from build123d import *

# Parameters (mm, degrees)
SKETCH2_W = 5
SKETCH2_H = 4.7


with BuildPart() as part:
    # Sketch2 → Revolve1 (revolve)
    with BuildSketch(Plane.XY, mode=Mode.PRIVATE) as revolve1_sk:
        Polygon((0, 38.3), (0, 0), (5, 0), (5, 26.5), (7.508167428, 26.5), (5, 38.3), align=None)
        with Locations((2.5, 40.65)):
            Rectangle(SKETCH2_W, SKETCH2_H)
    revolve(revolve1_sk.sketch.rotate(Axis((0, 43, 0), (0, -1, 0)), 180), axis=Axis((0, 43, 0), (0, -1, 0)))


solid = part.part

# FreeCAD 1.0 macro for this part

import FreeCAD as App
import Part
import Sketcher

V = App.Vector
Q = App.Units.Quantity


def add_polygon(sketch, points):
    """Adds a closed chain of lines whose ends are joined by coincident constraints."""
    first, n = sketch.GeometryCount, len(points)
    for a, b in zip(points, points[1:] + points[:1]):
        sketch.addGeometry(Part.LineSegment(App.Vector(*a, 0), App.Vector(*b, 0)), False)
    for i in range(n):
        sketch.addConstraint(Sketcher.Constraint("Coincident", first + i, 2, first + (i + 1) % n, 1))

doc = App.newDocument("Part")
body = doc.addObject("PartDesign::Body", "Body")

# Sketch on XY plane
sketch1 = doc.addObject("Sketcher::SketchObject", "Sketch")
body.addObject(sketch1)
sketch1.AttachmentSupport = (doc.XY_Plane, [""])
sketch1.MapMode = "FlatFace"
add_polygon(sketch1, [(0, 0), (5, 0), (5, 26.5), (7.508167, 26.5), (5, 38.3), (5, 43), (0, 43)])  # lines 0-6
sketch1.addConstraint(Sketcher.Constraint("Horizontal", 0))
sketch1.addConstraint(Sketcher.Constraint("Vertical", 1))
sketch1.addConstraint(Sketcher.Constraint("Horizontal", 2))
sketch1.addConstraint(Sketcher.Constraint("Vertical", 4))
sketch1.addConstraint(Sketcher.Constraint("Horizontal", 5))
sketch1.addConstraint(Sketcher.Constraint("Vertical", 6))
sketch1.addConstraint(Sketcher.Constraint("Coincident", 6, 2, -1, 1))
sketch1.addConstraint(Sketcher.Constraint("Vertical", 1, 2, 3, 2))
sketch1.addConstraint(Sketcher.Constraint("DistanceX", 0, 1, 0, 2, 5.0))
sketch1.addConstraint(Sketcher.Constraint("DistanceY", 6, 2, 6, 1, 43.0))
sketch1.addConstraint(Sketcher.Constraint("Angle", 3, Q("102 deg")))
sketch1.addConstraint(Sketcher.Constraint("DistanceY", 1, 1, 1, 2, 26.5))
sketch1.addConstraint(Sketcher.Constraint("DistanceY", 4, 1, 4, 2, 4.7))
revolution = doc.addObject("PartDesign::Revolution", "Revolution")
body.addObject(revolution)
revolution.Profile = sketch1
revolution.ReferenceAxis = (sketch1, ["V_Axis"])
revolution.Angle = 360

doc.recompute()
